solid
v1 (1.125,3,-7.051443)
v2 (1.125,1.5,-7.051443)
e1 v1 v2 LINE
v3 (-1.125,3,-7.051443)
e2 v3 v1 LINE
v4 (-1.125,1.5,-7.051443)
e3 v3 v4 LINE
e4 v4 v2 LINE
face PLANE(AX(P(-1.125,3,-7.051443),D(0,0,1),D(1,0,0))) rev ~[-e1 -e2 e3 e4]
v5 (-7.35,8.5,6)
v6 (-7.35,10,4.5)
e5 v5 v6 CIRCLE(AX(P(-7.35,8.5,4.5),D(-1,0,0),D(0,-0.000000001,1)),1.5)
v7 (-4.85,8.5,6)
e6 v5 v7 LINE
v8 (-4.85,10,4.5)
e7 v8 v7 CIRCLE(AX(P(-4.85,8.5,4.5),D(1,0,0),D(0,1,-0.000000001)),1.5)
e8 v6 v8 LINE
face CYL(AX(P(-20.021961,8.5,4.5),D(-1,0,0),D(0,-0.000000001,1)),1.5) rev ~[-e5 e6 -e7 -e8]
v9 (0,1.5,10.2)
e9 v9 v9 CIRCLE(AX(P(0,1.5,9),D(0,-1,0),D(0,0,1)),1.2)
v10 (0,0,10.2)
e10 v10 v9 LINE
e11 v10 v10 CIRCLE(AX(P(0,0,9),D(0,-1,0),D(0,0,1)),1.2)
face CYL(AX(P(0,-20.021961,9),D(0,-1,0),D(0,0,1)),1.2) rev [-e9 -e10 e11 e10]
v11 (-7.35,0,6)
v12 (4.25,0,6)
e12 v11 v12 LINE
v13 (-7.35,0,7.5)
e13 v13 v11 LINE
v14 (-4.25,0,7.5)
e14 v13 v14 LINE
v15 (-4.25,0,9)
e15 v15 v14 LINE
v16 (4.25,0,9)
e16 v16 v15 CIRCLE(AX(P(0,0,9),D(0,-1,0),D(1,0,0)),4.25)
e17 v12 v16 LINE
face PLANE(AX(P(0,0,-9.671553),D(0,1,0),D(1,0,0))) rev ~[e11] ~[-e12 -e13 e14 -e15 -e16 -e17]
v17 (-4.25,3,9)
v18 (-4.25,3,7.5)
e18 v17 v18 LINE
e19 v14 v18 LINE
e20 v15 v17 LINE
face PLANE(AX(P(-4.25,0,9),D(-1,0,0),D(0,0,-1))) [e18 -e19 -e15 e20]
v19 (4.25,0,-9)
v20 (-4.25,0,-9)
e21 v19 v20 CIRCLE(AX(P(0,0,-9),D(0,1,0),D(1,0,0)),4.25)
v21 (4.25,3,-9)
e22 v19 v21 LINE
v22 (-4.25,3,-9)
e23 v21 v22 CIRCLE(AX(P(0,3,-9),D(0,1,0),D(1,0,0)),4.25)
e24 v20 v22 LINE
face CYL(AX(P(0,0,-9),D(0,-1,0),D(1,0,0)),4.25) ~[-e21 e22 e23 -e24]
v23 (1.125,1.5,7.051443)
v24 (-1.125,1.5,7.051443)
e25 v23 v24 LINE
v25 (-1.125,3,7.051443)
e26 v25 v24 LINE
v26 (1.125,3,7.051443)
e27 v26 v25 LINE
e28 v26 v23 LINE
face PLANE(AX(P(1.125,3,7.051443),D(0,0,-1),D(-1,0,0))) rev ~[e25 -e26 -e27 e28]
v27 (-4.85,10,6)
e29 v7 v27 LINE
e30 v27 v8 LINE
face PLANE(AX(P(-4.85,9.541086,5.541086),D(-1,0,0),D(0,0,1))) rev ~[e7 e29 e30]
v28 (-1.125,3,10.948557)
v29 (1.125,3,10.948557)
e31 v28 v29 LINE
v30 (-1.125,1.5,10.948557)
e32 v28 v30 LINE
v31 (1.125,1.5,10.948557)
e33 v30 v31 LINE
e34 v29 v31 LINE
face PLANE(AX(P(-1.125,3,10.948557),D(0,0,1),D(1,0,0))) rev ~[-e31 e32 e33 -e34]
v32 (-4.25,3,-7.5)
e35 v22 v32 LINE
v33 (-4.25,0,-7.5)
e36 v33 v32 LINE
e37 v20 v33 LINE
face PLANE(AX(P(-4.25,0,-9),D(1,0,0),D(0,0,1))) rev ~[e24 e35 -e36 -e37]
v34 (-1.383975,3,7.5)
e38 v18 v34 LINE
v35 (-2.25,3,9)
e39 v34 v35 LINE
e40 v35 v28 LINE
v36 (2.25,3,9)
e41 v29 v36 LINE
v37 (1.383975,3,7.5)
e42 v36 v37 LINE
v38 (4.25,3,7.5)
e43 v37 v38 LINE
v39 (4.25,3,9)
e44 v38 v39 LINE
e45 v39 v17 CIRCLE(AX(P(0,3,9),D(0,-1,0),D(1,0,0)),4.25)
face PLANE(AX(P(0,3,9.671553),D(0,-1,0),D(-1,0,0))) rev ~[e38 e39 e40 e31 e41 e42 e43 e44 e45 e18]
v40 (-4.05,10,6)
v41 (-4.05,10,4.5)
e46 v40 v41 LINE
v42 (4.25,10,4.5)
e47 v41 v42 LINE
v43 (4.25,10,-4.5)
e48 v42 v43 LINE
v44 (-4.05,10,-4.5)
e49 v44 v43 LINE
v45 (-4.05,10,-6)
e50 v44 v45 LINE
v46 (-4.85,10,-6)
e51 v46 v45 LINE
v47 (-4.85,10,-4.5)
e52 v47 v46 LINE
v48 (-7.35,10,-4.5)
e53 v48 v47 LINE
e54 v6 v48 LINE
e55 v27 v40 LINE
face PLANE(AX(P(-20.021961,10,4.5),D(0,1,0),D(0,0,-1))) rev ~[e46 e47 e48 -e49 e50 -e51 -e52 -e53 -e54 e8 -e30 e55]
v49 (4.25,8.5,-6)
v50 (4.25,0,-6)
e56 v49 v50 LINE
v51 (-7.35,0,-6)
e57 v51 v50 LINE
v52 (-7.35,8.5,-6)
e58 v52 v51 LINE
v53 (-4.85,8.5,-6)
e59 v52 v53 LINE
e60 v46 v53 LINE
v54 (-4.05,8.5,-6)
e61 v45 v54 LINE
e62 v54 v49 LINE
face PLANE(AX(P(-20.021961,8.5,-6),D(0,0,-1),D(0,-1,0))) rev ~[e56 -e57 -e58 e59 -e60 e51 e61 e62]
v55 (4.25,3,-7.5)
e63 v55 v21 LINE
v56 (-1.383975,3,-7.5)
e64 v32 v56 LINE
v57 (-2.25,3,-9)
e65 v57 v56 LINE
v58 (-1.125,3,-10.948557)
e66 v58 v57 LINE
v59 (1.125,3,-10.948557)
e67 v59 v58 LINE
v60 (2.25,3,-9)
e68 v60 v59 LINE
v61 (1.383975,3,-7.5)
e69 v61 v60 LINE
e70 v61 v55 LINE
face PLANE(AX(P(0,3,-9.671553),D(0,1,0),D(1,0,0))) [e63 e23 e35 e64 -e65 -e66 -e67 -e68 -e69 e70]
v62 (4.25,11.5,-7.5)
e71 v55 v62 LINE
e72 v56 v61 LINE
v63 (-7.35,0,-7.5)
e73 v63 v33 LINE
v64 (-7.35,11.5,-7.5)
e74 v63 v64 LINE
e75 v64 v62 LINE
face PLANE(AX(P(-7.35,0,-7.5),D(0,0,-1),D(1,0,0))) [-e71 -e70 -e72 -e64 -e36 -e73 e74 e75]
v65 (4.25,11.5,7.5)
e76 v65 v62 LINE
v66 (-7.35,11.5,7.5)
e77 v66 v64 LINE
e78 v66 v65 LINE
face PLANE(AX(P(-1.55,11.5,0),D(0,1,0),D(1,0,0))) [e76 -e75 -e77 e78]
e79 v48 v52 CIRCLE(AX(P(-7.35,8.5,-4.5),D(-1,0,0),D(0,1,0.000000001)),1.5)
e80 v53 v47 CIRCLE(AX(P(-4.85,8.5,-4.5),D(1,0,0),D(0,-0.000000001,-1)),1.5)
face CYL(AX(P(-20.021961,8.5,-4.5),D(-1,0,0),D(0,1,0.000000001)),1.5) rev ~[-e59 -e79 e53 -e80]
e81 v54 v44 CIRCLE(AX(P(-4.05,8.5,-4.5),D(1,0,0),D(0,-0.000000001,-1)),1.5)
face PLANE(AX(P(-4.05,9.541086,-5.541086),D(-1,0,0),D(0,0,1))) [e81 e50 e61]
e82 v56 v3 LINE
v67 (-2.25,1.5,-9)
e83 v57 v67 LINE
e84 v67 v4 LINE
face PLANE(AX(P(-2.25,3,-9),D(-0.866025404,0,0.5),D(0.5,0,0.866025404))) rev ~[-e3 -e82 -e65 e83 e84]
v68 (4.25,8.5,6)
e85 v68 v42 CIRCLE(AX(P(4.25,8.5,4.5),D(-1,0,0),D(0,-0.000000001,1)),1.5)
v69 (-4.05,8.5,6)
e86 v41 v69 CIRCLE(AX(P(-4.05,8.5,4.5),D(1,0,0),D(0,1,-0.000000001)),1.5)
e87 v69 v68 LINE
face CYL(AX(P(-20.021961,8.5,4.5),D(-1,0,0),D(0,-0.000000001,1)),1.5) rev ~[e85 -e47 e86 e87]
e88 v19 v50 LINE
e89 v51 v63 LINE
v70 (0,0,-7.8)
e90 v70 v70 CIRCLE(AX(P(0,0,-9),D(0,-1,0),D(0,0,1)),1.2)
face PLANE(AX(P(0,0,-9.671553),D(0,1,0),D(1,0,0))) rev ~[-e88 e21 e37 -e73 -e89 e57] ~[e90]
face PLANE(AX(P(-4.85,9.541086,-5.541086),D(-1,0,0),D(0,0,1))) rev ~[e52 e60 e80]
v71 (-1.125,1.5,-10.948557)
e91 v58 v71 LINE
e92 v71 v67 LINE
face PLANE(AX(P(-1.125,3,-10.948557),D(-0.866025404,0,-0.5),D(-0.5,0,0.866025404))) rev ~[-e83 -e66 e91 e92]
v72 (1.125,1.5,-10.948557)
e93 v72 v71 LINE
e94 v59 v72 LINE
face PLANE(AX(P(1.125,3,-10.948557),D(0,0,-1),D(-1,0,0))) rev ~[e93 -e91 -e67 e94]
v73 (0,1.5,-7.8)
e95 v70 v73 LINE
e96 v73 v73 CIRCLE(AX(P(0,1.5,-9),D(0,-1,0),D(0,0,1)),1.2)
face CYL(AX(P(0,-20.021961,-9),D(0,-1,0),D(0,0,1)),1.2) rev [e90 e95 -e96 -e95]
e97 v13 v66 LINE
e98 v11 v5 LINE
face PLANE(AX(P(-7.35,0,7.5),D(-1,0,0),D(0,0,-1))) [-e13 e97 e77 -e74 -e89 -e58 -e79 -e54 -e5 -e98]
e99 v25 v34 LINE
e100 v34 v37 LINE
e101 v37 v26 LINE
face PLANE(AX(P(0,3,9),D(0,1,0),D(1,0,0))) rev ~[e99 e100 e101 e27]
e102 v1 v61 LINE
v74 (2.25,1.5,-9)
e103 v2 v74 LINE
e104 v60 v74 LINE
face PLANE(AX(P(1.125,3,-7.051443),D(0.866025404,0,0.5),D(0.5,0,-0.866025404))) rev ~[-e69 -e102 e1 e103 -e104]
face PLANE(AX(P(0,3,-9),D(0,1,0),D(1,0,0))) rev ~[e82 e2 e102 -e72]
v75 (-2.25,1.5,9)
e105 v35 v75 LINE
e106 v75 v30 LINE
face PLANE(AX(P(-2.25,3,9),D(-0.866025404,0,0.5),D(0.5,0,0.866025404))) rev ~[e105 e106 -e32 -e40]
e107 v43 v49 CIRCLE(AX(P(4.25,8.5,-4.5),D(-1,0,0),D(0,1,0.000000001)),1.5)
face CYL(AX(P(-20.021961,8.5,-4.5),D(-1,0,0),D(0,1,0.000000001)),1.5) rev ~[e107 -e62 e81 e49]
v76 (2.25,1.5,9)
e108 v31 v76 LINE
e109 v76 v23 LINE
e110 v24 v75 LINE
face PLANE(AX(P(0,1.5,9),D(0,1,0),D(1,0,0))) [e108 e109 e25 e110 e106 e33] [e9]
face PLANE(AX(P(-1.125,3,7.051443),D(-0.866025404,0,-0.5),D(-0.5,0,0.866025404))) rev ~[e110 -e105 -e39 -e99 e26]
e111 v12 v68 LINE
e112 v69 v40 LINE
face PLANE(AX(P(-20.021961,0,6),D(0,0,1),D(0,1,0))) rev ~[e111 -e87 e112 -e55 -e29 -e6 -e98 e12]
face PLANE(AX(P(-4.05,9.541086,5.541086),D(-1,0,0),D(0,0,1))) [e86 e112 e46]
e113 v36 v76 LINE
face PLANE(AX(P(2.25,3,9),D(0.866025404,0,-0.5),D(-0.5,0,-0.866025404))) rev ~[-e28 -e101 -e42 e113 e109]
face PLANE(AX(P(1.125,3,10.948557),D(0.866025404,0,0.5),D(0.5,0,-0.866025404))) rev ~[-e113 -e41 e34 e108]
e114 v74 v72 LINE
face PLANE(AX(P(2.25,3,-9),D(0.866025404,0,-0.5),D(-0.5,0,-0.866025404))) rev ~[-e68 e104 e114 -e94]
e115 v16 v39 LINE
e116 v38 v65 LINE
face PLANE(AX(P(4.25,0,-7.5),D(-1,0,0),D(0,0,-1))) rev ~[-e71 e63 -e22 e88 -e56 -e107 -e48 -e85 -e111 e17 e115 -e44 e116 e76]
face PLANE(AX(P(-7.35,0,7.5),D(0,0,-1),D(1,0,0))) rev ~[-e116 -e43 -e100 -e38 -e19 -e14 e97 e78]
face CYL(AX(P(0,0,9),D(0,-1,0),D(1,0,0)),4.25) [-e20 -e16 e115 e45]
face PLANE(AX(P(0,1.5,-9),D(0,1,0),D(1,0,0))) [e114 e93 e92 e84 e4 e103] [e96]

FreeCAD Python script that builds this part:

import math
import FreeCAD as App
import Part
import Sketcher
Q = App.Units.Quantity

doc = App.newDocument("Part")
body = doc.addObject("PartDesign::Body", "Body")

# Sketch on XZ plane
sketch1 = body.newObject("Sketcher::SketchObject", "Sketch")
sketch1.AttachmentSupport = (doc.getObject("XZ_Plane"), [""])
sketch1.MapMode = "FlatFace"
sketch1.addGeometry([
    Part.LineSegment(App.Vector(-7.35, -7.5, 0), App.Vector(-7.35, 7.5, 0)),
    Part.LineSegment(App.Vector(-7.35, 7.5, 0), App.Vector(4.25, 7.5, 0)),
    Part.LineSegment(App.Vector(4.25, 7.5, 0), App.Vector(4.25, -7.5, 0)),
    Part.LineSegment(App.Vector(4.25, -7.5, 0), App.Vector(-7.35, -7.5, 0)),
], False)
sketch1.addConstraint([
    Sketcher.Constraint("Coincident", 0, 2, 1, 1),
    Sketcher.Constraint("Coincident", 1, 2, 2, 1),
    Sketcher.Constraint("Coincident", 2, 2, 3, 1),
    Sketcher.Constraint("Coincident", 3, 2, 0, 1),
    Sketcher.Constraint("Vertical", 0),
    Sketcher.Constraint("Horizontal", 1),
    Sketcher.Constraint("Vertical", 2),
    Sketcher.Constraint("Horizontal", 3),
    Sketcher.Constraint("DistanceY", 0, 1, 0, 2, Q("15 mm")),
    Sketcher.Constraint("DistanceX", 1, 1, 1, 2, Q("11.6 mm")),
    Sketcher.Constraint("DistanceY", -1, 1, 0, 2, Q("7.5 mm")),
    Sketcher.Constraint("DistanceX", 0, 2, -1, 1, Q("7.35 mm")),
])
pad1 = body.newObject("PartDesign::Pad", "Pad")
pad1.Profile = sketch1
pad1.Length = 11.5
pad1.Reversed = True

# Sketch on XZ plane
sketch2 = body.newObject("Sketcher::SketchObject", "Sketch001")
sketch2.AttachmentSupport = (doc.getObject("XZ_Plane"), [""])
sketch2.MapMode = "FlatFace"
sketch2.addGeometry([
    Part.LineSegment(App.Vector(-4.25, -9, 0), App.Vector(-4.25, -7.5, 0)),  # 0
    Part.LineSegment(App.Vector(-4.25, -7.5, 0), App.Vector(4.25, -7.5, 0)),  # 1
    Part.LineSegment(App.Vector(4.25, -7.5, 0), App.Vector(4.25, -9, 0)),  # 2
    Part.ArcOfCircle(Part.Circle(App.Vector(0, -9, 0), App.Vector(0, 0, 1), 4.25), math.radians(180), math.radians(360)),  # 3
    Part.LineSegment(App.Vector(4.25, 9, 0), App.Vector(4.25, 7.5, 0)),  # 4
    Part.LineSegment(App.Vector(4.25, 7.5, 0), App.Vector(-4.25, 7.5, 0)),  # 5
    Part.LineSegment(App.Vector(-4.25, 7.5, 0), App.Vector(-4.25, 9, 0)),  # 6
    Part.ArcOfCircle(Part.Circle(App.Vector(0, 9, 0), App.Vector(0, 0, 1), 4.25), math.radians(0), math.radians(180)),  # 7
], False)
sketch2.addConstraint([
    Sketcher.Constraint("Coincident", 0, 2, 1, 1),
    Sketcher.Constraint("Coincident", 1, 2, 2, 1),
    Sketcher.Constraint("Tangent", 2, 2, 3, 2),
    Sketcher.Constraint("Tangent", 3, 1, 0, 1),
    Sketcher.Constraint("Coincident", 4, 2, 5, 1),
    Sketcher.Constraint("Coincident", 5, 2, 6, 1),
    Sketcher.Constraint("Tangent", 6, 2, 7, 2),
    Sketcher.Constraint("Tangent", 7, 1, 4, 1),
    Sketcher.Constraint("Vertical", 0),
    Sketcher.Constraint("Horizontal", 1),
    Sketcher.Constraint("Vertical", 2),
    Sketcher.Constraint("Vertical", 4),
    Sketcher.Constraint("Horizontal", 5),
    Sketcher.Constraint("Vertical", 6),
    Sketcher.Constraint("Equal", 3, 7),
    Sketcher.Constraint("Symmetric", 3, 3, 7, 3, -1, 1),
    Sketcher.Constraint("Symmetric", 1, 2, 4, 2, -1),
    Sketcher.Constraint("Radius", 3, Q("4.25 mm")),
    Sketcher.Constraint("DistanceY", 0, 1, 0, 2, Q("1.5 mm")),
    Sketcher.Constraint("DistanceY", 3, 3, -1, 1, Q("9 mm")),
])
pad2 = body.newObject("PartDesign::Pad", "Pad001")
pad2.Profile = sketch2
pad2.Length = 3
pad2.Reversed = True

# Sketch on XZ plane
sketch3 = body.newObject("Sketcher::SketchObject", "Sketch002")
sketch3.AttachmentSupport = (doc.getObject("XZ_Plane"), [""])
sketch3.MapMode = "FlatFace"
sketch3.AttachmentOffset = App.Placement(App.Vector(0, 0, -3), App.Rotation())
sketch3.addGeometry([
    Part.LineSegment(App.Vector(2.25, -9, 0), App.Vector(1.125, -10.948557, 0)),  # 0
    Part.LineSegment(App.Vector(1.125, -10.948557, 0), App.Vector(-1.125, -10.948557, 0)),  # 1
    Part.LineSegment(App.Vector(-1.125, -10.948557, 0), App.Vector(-2.25, -9, 0)),  # 2
    Part.LineSegment(App.Vector(-2.25, -9, 0), App.Vector(-1.125, -7.051443, 0)),  # 3
    Part.LineSegment(App.Vector(-1.125, -7.051443, 0), App.Vector(1.125, -7.051443, 0)),  # 4
    Part.LineSegment(App.Vector(1.125, -7.051443, 0), App.Vector(2.25, -9, 0)),  # 5
    Part.LineSegment(App.Vector(2.25, 9, 0), App.Vector(1.125, 7.051443, 0)),  # 6
    Part.LineSegment(App.Vector(1.125, 7.051443, 0), App.Vector(-1.125, 7.051443, 0)),  # 7
    Part.LineSegment(App.Vector(-1.125, 7.051443, 0), App.Vector(-2.25, 9, 0)),  # 8
    Part.LineSegment(App.Vector(-2.25, 9, 0), App.Vector(-1.125, 10.948557, 0)),  # 9
    Part.LineSegment(App.Vector(-1.125, 10.948557, 0), App.Vector(1.125, 10.948557, 0)),  # 10
    Part.LineSegment(App.Vector(1.125, 10.948557, 0), App.Vector(2.25, 9, 0)),  # 11
], False)
sketch3.addConstraint([
    Sketcher.Constraint("Coincident", 0, 2, 1, 1),
    Sketcher.Constraint("Coincident", 1, 2, 2, 1),
    Sketcher.Constraint("Coincident", 2, 2, 3, 1),
    Sketcher.Constraint("Coincident", 3, 2, 4, 1),
    Sketcher.Constraint("Coincident", 4, 2, 5, 1),
    Sketcher.Constraint("Coincident", 5, 2, 0, 1),
    Sketcher.Constraint("Coincident", 6, 2, 7, 1),
    Sketcher.Constraint("Coincident", 7, 2, 8, 1),
    Sketcher.Constraint("Coincident", 8, 2, 9, 1),
    Sketcher.Constraint("Coincident", 9, 2, 10, 1),
    Sketcher.Constraint("Coincident", 10, 2, 11, 1),
    Sketcher.Constraint("Coincident", 11, 2, 6, 1),
    Sketcher.Constraint("Horizontal", 1),
    Sketcher.Constraint("Horizontal", 4),
    Sketcher.Constraint("Horizontal", 7),
    Sketcher.Constraint("Horizontal", 10),
    Sketcher.Constraint("Symmetric", 3, 2, 6, 2, -1, 1),
    Sketcher.Constraint("Symmetric", 5, 2, 8, 2, -1, 1),
    Sketcher.Constraint("Symmetric", 0, 2, 9, 2, -1, 1),
    Sketcher.Constraint("Symmetric", 2, 2, 11, 2, -1, 1),
    Sketcher.Constraint("Symmetric", 2, 2, 5, 2, -2),
    Sketcher.Constraint("Parallel", 0, 3),
    Sketcher.Constraint("Parallel", 2, 5),
    Sketcher.Constraint("Parallel", 5, 8),
    Sketcher.Constraint("Parallel", 8, 11),
    Sketcher.Constraint("Vertical", 1, 2, 3, 2),
    Sketcher.Constraint("Vertical", 0, 2, 4, 2),
    Sketcher.Constraint("Angle", 0, Q("-120 deg")),
    Sketcher.Constraint("DistanceY", 2, 2, -1, 1, Q("9 mm")),
    Sketcher.Constraint("DistanceX", 1, 2, 1, 1, Q("2.25 mm")),
    Sketcher.Constraint("DistanceX", 2, 2, 5, 2, Q("4.5 mm")),
])
pocket1 = body.newObject("PartDesign::Pocket", "Pocket")
pocket1.Profile = sketch3
pocket1.Length = 1.5
pocket1.Reversed = True

# Sketch on XZ plane
sketch4 = body.newObject("Sketcher::SketchObject", "Sketch003")
sketch4.AttachmentSupport = (doc.getObject("XZ_Plane"), [""])
sketch4.MapMode = "FlatFace"
sketch4.addGeometry([
    Part.Circle(App.Vector(0, -9, 0), App.Vector(0, 0, 1), 1.2),
    Part.Circle(App.Vector(0, 9, 0), App.Vector(0, 0, 1), 1.2),
], False)
sketch4.addConstraint([
    Sketcher.Constraint("Equal", 0, 1),
    Sketcher.Constraint("Symmetric", 0, 3, 1, 3, -1, 1),
    Sketcher.Constraint("PointOnObject", 0, 3, -2),
    Sketcher.Constraint("Diameter", 0, Q("2.4 mm")),
    Sketcher.Constraint("DistanceY", 0, 3, -1, 1, Q("9 mm")),
])
pocket2 = body.newObject("PartDesign::Pocket", "Pocket001")
pocket2.Profile = sketch4
pocket2.Type = "ThroughAll"
pocket2.Midplane = True

# Sketch on YZ plane
sketch5 = body.newObject("Sketcher::SketchObject", "Sketch004")
sketch5.AttachmentSupport = (doc.getObject("YZ_Plane"), [""])
sketch5.MapMode = "FlatFace"
sketch5.addGeometry([
    Part.LineSegment(App.Vector(10, -4.5, 0), App.Vector(10, 4.5, 0)),  # 0
    Part.ArcOfCircle(Part.Circle(App.Vector(8.5, 4.5, 0), App.Vector(0, 0, 1), 1.5), math.radians(0), math.radians(90)),  # 1
    Part.LineSegment(App.Vector(8.5, 6, 0), App.Vector(0, 6, 0)),  # 2
    Part.LineSegment(App.Vector(0, 6, 0), App.Vector(0, -6, 0)),  # 3
    Part.LineSegment(App.Vector(0, -6, 0), App.Vector(8.5, -6, 0)),  # 4
    Part.ArcOfCircle(Part.Circle(App.Vector(8.5, -4.5, 0), App.Vector(0, 0, 1), 1.5), math.radians(-90), math.radians(0)),  # 5
], False)
sketch5.addConstraint([
    Sketcher.Constraint("Tangent", 0, 2, 1, 1),
    Sketcher.Constraint("Tangent", 1, 2, 2, 1),
    Sketcher.Constraint("Coincident", 2, 2, 3, 1),
    Sketcher.Constraint("Coincident", 3, 2, 4, 1),
    Sketcher.Constraint("Tangent", 4, 2, 5, 1),
    Sketcher.Constraint("Tangent", 5, 2, 0, 1),
    Sketcher.Constraint("Vertical", 0),
    Sketcher.Constraint("Horizontal", 2),
    Sketcher.Constraint("Vertical", 3),
    Sketcher.Constraint("Horizontal", 4),
    Sketcher.Constraint("Equal", 1, 5),
    Sketcher.Constraint("Symmetric", 2, 2, 3, 2, -1, 1),
    Sketcher.Constraint("Radius", 1, Q("1.5 mm")),
    Sketcher.Constraint("DistanceY", 0, 1, 0, 2, Q("9 mm")),
    Sketcher.Constraint("DistanceX", 2, 2, 2, 1, Q("8.5 mm")),
])
pocket3 = body.newObject("PartDesign::Pocket", "Pocket002")
pocket3.Profile = sketch5
pocket3.Type = "ThroughAll"
pocket3.Midplane = True

# Sketch on YZ plane
sketch6 = body.newObject("Sketcher::SketchObject", "Sketch005")
sketch6.AttachmentSupport = (doc.getObject("YZ_Plane"), [""])
sketch6.MapMode = "FlatFace"
sketch6.AttachmentOffset = App.Placement(App.Vector(0, 0, -4.85), App.Rotation())
sketch6.addGeometry([
    Part.LineSegment(App.Vector(10, 6, 0), App.Vector(8.5, 6, 0)),  # 0
    Part.ArcOfCircle(Part.Circle(App.Vector(8.5, 4.5, 0), App.Vector(0, 0, 1), 1.5), math.radians(0), math.radians(90)),  # 1
    Part.LineSegment(App.Vector(10, 4.5, 0), App.Vector(10, 6, 0)),  # 2
    Part.LineSegment(App.Vector(10, -6, 0), App.Vector(10, -4.5, 0)),  # 3
    Part.ArcOfCircle(Part.Circle(App.Vector(8.5, -4.5, 0), App.Vector(0, 0, 1), 1.5), math.radians(-90), math.radians(0)),  # 4
    Part.LineSegment(App.Vector(8.5, -6, 0), App.Vector(10, -6, 0)),  # 5
], False)
sketch6.addConstraint([
    Sketcher.Constraint("Tangent", 0, 2, 1, 2),
    Sketcher.Constraint("Tangent", 1, 1, 2, 1),
    Sketcher.Constraint("Coincident", 2, 2, 0, 1),
    Sketcher.Constraint("Tangent", 3, 2, 4, 2),
    Sketcher.Constraint("Tangent", 4, 1, 5, 1),
    Sketcher.Constraint("Coincident", 5, 2, 3, 1),
    Sketcher.Constraint("Horizontal", 0),
    Sketcher.Constraint("Vertical", 2),
    Sketcher.Constraint("Vertical", 3),
    Sketcher.Constraint("Horizontal", 5),
    Sketcher.Constraint("Equal", 1, 4),
    Sketcher.Constraint("Symmetric", 1, 3, 4, 3, -1),
    Sketcher.Constraint("Radius", 1, Q("1.5 mm")),
    Sketcher.Constraint("DistanceY", -1, 1, 0, 2, Q("6 mm")),
    Sketcher.Constraint("DistanceX", -1, 1, 1, 1, Q("10 mm")),
])
pocket4 = body.newObject("PartDesign::Pocket", "Pocket003")
pocket4.Profile = sketch6
pocket4.Length = 0.8
pocket4.Reversed = True

doc.recompute()
